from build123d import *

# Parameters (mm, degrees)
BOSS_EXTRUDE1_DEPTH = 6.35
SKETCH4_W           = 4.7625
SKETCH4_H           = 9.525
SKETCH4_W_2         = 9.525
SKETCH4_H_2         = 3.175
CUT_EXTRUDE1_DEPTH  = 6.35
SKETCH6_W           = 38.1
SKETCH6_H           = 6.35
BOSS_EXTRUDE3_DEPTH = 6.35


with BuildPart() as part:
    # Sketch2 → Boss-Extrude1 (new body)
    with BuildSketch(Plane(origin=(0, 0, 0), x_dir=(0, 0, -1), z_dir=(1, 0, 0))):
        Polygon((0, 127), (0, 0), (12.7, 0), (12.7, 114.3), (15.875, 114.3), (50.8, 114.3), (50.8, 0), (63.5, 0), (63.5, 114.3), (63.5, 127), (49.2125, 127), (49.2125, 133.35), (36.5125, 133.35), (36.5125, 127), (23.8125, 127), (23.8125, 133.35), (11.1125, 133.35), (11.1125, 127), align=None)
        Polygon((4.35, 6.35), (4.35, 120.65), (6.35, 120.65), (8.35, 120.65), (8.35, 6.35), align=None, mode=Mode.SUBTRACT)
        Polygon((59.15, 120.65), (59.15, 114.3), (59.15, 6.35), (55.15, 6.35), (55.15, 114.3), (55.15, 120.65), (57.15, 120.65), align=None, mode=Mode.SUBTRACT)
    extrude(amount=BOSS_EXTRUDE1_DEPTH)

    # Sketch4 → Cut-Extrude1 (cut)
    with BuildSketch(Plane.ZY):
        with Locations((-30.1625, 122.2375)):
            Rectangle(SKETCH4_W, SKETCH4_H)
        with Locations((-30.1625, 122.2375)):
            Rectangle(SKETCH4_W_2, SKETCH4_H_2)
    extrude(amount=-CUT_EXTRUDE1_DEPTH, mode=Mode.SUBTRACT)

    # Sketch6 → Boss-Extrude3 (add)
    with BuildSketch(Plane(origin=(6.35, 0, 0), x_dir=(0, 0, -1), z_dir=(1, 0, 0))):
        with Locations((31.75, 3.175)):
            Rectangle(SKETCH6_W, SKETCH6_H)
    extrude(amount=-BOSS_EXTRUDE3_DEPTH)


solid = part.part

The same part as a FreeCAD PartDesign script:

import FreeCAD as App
import Part
import Sketcher
from FreeCAD import Vector
Q = App.Units.Quantity


def add_polygon(sketch, points):
    """Adds a closed chain of lines whose ends are joined by coincident constraints."""
    first, n = sketch.GeometryCount, len(points)
    for a, b in zip(points, points[1:] + points[:1]):
        sketch.addGeometry(Part.LineSegment(App.Vector(*a, 0), App.Vector(*b, 0)), False)
    for i in range(n):
        sketch.addConstraint(Sketcher.Constraint("Coincident", first + i, 2, first + (i + 1) % n, 1))

doc = App.newDocument("Part")
body = doc.addObject("PartDesign::Body", "Body")

# Sketch on YZ plane
sketch1 = body.newObject("Sketcher::SketchObject", "Sketch")
sketch1.AttachmentSupport = (doc.getObject("YZ_Plane"), [""])
sketch1.MapMode = "FlatFace"
add_polygon(sketch1, [(127, 0), (0, 0), (0, -12.7), (114.3, -12.7), (114.3, -50.8), (0, -50.8), (0, -63.5), (127, -63.5), (127, -49.2125), (133.35, -49.2125), (133.35, -36.5125), (127, -36.5125), (127, -23.8125), (133.35, -23.8125), (133.35, -11.1125), (127, -11.1125)])  # lines 0-15
add_polygon(sketch1, [(6.35, -8.35), (6.35, -4.35), (120.65, -4.35), (120.65, -8.35)])  # lines 16-19
add_polygon(sketch1, [(120.65, -55.15), (120.65, -59.15), (6.35, -59.15), (6.35, -55.15)])  # lines 20-23
sketch1.addConstraint([
    Sketcher.Constraint("Horizontal", 0),
    Sketcher.Constraint("Vertical", 1),
    Sketcher.Constraint("Horizontal", 2),
    Sketcher.Constraint("Vertical", 3),
    Sketcher.Constraint("Horizontal", 4),
    Sketcher.Constraint("Vertical", 5),
    Sketcher.Constraint("Horizontal", 6),
    Sketcher.Constraint("Vertical", 7),
    Sketcher.Constraint("Horizontal", 8),
    Sketcher.Constraint("Vertical", 9),
    Sketcher.Constraint("Horizontal", 10),
    Sketcher.Constraint("Vertical", 11),
    Sketcher.Constraint("Horizontal", 12),
    Sketcher.Constraint("Vertical", 13),
    Sketcher.Constraint("Horizontal", 14),
    Sketcher.Constraint("Vertical", 15),
    Sketcher.Constraint("Vertical", 16),
    Sketcher.Constraint("Horizontal", 17),
    Sketcher.Constraint("Vertical", 18),
    Sketcher.Constraint("Horizontal", 19),
    Sketcher.Constraint("Vertical", 20),
    Sketcher.Constraint("Horizontal", 21),
    Sketcher.Constraint("Vertical", 22),
    Sketcher.Constraint("Horizontal", 23),
    Sketcher.Constraint("Coincident", 0, 2, -1, 1),
    Sketcher.Constraint("PointOnObject", 4, 2, -2),
    Sketcher.Constraint("Vertical", 7, 2, 10, 2),
    Sketcher.Constraint("Vertical", 9, 2, 12, 2),
    Sketcher.Constraint("Vertical", 11, 2, 14, 2),
    Sketcher.Constraint("Vertical", 18, 2, 20, 2),
    Sketcher.Constraint("Vertical", 19, 2, 21, 2),
    Sketcher.Constraint("Equal", 4, 17),
    Sketcher.Constraint("Equal", 1, 5),
    Sketcher.Constraint("Equal", 5, 9),
    Sketcher.Constraint("Equal", 9, 11),
    Sketcher.Constraint("Equal", 11, 13),
    Sketcher.Constraint("Equal", 18, 20),
    Sketcher.Constraint("DistanceX", 0, 2, 0, 1, Q("5 in")),
    Sketcher.Constraint("DistanceX", 2, 1, 2, 2, Q("4.5 in")),
    Sketcher.Constraint("DistanceY", 1, 2, 1, 1, Q("0.5 in")),
    Sketcher.Constraint("DistanceY", 3, 2, 3, 1, Q("1.5 in")),
    Sketcher.Constraint("DistanceY", 21, 2, 19, 2, Q("2 in")),
    Sketcher.Constraint("DistanceX", 8, 1, 8, 2, Q("0.25 in")),
    Sketcher.Constraint("DistanceX", 17, 2, 13, 2, Q("0.5 in")),
    Sketcher.Constraint("DistanceY", 7, 1, 7, 2, Q("0.5625 in")),
    Sketcher.Constraint("DistanceY", 16, 1, 16, 2, Q("4 mm")),
    Sketcher.Constraint("DistanceY", 16, 2, -1, 1, Q("4.35 mm")),
])
pad1 = body.newObject("PartDesign::Pad", "Pad")
pad1.Profile = sketch1
pad1.Length = Q("0.25 in")

# Sketch on YZ plane
sketch2 = body.newObject("Sketcher::SketchObject", "Sketch001")
sketch2.AttachmentSupport = (doc.getObject("YZ_Plane"), [""])
sketch2.MapMode = "FlatFace"
add_polygon(sketch2, [(120.65, -32.54375), (117.475, -32.54375), (117.475, -27.78125), (120.65, -27.78125), (120.65, -25.4), (123.825, -25.4), (123.825, -27.78125), (127, -27.78125), (127, -32.54375), (123.825, -32.54375), (123.825, -34.925), (120.65, -34.925)])  # lines 0-11
sketch2.addConstraint([
    Sketcher.Constraint("Horizontal", 0),
    Sketcher.Constraint("Vertical", 1),
    Sketcher.Constraint("Horizontal", 2),
    Sketcher.Constraint("Vertical", 3),
    Sketcher.Constraint("Horizontal", 4),
    Sketcher.Constraint("Vertical", 5),
    Sketcher.Constraint("Horizontal", 6),
    Sketcher.Constraint("Vertical", 7),
    Sketcher.Constraint("Horizontal", 8),
    Sketcher.Constraint("Vertical", 9),
    Sketcher.Constraint("Horizontal", 10),
    Sketcher.Constraint("Vertical", 11),
    Sketcher.Constraint("Horizontal", 2, 2, 5, 2),
    Sketcher.Constraint("Horizontal", 0, 2, 7, 2),
    Sketcher.Constraint("Vertical", 5, 2, 8, 2),
    Sketcher.Constraint("Vertical", 3, 2, 10, 2),
    Sketcher.Constraint("Equal", 2, 4),
    Sketcher.Constraint("Equal", 4, 6),
    Sketcher.Constraint("Equal", 5, 9),
    Sketcher.Constraint("DistanceY", 3, 2, -1, 1, Q("1 in")),
    Sketcher.Constraint("DistanceX", -1, 1, 6, 2, Q("5 in")),
    Sketcher.Constraint("DistanceX", 0, 2, 0, 1, Q("0.125 in")),
    Sketcher.Constraint("DistanceY", 1, 1, 1, 2, Q("0.1875 in")),
    Sketcher.Constraint("DistanceY", 3, 1, 3, 2, Q("0.09375 in")),
])
pocket1 = body.newObject("PartDesign::Pocket", "Pocket")
pocket1.Profile = sketch2
pocket1.Length = Q("0.25 in")
pocket1.Reversed = True

# Sketch on YZ plane
sketch3 = body.newObject("Sketcher::SketchObject", "Sketch002")
sketch3.AttachmentSupport = (doc.getObject("YZ_Plane"), [""])
sketch3.MapMode = "FlatFace"
sketch3.AttachmentOffset = App.Placement(Vector(0, 0, 0.25 * 25.4), App.Rotation())
add_polygon(sketch3, [(6.35, -12.7), (0, -12.7), (0, -50.8), (6.35, -50.8)])  # lines 0-3
sketch3.addConstraint([
    Sketcher.Constraint("Horizontal", 0),
    Sketcher.Constraint("Vertical", 1),
    Sketcher.Constraint("Horizontal", 2),
    Sketcher.Constraint("Vertical", 3),
    Sketcher.Constraint("PointOnObject", 0, 2, -2),
    Sketcher.Constraint("DistanceY", 1, 2, 1, 1, Q("1.5 in")),
    Sketcher.Constraint("DistanceY", 1, 2, -1, 1, Q("2 in")),
    Sketcher.Constraint("DistanceX", 0, 2, 0, 1, Q("0.25 in")),
])
pad2 = body.newObject("PartDesign::Pad", "Pad001")
pad2.Profile = sketch3
pad2.Length = Q("0.25 in")
pad2.Reversed = True

doc.recompute()
